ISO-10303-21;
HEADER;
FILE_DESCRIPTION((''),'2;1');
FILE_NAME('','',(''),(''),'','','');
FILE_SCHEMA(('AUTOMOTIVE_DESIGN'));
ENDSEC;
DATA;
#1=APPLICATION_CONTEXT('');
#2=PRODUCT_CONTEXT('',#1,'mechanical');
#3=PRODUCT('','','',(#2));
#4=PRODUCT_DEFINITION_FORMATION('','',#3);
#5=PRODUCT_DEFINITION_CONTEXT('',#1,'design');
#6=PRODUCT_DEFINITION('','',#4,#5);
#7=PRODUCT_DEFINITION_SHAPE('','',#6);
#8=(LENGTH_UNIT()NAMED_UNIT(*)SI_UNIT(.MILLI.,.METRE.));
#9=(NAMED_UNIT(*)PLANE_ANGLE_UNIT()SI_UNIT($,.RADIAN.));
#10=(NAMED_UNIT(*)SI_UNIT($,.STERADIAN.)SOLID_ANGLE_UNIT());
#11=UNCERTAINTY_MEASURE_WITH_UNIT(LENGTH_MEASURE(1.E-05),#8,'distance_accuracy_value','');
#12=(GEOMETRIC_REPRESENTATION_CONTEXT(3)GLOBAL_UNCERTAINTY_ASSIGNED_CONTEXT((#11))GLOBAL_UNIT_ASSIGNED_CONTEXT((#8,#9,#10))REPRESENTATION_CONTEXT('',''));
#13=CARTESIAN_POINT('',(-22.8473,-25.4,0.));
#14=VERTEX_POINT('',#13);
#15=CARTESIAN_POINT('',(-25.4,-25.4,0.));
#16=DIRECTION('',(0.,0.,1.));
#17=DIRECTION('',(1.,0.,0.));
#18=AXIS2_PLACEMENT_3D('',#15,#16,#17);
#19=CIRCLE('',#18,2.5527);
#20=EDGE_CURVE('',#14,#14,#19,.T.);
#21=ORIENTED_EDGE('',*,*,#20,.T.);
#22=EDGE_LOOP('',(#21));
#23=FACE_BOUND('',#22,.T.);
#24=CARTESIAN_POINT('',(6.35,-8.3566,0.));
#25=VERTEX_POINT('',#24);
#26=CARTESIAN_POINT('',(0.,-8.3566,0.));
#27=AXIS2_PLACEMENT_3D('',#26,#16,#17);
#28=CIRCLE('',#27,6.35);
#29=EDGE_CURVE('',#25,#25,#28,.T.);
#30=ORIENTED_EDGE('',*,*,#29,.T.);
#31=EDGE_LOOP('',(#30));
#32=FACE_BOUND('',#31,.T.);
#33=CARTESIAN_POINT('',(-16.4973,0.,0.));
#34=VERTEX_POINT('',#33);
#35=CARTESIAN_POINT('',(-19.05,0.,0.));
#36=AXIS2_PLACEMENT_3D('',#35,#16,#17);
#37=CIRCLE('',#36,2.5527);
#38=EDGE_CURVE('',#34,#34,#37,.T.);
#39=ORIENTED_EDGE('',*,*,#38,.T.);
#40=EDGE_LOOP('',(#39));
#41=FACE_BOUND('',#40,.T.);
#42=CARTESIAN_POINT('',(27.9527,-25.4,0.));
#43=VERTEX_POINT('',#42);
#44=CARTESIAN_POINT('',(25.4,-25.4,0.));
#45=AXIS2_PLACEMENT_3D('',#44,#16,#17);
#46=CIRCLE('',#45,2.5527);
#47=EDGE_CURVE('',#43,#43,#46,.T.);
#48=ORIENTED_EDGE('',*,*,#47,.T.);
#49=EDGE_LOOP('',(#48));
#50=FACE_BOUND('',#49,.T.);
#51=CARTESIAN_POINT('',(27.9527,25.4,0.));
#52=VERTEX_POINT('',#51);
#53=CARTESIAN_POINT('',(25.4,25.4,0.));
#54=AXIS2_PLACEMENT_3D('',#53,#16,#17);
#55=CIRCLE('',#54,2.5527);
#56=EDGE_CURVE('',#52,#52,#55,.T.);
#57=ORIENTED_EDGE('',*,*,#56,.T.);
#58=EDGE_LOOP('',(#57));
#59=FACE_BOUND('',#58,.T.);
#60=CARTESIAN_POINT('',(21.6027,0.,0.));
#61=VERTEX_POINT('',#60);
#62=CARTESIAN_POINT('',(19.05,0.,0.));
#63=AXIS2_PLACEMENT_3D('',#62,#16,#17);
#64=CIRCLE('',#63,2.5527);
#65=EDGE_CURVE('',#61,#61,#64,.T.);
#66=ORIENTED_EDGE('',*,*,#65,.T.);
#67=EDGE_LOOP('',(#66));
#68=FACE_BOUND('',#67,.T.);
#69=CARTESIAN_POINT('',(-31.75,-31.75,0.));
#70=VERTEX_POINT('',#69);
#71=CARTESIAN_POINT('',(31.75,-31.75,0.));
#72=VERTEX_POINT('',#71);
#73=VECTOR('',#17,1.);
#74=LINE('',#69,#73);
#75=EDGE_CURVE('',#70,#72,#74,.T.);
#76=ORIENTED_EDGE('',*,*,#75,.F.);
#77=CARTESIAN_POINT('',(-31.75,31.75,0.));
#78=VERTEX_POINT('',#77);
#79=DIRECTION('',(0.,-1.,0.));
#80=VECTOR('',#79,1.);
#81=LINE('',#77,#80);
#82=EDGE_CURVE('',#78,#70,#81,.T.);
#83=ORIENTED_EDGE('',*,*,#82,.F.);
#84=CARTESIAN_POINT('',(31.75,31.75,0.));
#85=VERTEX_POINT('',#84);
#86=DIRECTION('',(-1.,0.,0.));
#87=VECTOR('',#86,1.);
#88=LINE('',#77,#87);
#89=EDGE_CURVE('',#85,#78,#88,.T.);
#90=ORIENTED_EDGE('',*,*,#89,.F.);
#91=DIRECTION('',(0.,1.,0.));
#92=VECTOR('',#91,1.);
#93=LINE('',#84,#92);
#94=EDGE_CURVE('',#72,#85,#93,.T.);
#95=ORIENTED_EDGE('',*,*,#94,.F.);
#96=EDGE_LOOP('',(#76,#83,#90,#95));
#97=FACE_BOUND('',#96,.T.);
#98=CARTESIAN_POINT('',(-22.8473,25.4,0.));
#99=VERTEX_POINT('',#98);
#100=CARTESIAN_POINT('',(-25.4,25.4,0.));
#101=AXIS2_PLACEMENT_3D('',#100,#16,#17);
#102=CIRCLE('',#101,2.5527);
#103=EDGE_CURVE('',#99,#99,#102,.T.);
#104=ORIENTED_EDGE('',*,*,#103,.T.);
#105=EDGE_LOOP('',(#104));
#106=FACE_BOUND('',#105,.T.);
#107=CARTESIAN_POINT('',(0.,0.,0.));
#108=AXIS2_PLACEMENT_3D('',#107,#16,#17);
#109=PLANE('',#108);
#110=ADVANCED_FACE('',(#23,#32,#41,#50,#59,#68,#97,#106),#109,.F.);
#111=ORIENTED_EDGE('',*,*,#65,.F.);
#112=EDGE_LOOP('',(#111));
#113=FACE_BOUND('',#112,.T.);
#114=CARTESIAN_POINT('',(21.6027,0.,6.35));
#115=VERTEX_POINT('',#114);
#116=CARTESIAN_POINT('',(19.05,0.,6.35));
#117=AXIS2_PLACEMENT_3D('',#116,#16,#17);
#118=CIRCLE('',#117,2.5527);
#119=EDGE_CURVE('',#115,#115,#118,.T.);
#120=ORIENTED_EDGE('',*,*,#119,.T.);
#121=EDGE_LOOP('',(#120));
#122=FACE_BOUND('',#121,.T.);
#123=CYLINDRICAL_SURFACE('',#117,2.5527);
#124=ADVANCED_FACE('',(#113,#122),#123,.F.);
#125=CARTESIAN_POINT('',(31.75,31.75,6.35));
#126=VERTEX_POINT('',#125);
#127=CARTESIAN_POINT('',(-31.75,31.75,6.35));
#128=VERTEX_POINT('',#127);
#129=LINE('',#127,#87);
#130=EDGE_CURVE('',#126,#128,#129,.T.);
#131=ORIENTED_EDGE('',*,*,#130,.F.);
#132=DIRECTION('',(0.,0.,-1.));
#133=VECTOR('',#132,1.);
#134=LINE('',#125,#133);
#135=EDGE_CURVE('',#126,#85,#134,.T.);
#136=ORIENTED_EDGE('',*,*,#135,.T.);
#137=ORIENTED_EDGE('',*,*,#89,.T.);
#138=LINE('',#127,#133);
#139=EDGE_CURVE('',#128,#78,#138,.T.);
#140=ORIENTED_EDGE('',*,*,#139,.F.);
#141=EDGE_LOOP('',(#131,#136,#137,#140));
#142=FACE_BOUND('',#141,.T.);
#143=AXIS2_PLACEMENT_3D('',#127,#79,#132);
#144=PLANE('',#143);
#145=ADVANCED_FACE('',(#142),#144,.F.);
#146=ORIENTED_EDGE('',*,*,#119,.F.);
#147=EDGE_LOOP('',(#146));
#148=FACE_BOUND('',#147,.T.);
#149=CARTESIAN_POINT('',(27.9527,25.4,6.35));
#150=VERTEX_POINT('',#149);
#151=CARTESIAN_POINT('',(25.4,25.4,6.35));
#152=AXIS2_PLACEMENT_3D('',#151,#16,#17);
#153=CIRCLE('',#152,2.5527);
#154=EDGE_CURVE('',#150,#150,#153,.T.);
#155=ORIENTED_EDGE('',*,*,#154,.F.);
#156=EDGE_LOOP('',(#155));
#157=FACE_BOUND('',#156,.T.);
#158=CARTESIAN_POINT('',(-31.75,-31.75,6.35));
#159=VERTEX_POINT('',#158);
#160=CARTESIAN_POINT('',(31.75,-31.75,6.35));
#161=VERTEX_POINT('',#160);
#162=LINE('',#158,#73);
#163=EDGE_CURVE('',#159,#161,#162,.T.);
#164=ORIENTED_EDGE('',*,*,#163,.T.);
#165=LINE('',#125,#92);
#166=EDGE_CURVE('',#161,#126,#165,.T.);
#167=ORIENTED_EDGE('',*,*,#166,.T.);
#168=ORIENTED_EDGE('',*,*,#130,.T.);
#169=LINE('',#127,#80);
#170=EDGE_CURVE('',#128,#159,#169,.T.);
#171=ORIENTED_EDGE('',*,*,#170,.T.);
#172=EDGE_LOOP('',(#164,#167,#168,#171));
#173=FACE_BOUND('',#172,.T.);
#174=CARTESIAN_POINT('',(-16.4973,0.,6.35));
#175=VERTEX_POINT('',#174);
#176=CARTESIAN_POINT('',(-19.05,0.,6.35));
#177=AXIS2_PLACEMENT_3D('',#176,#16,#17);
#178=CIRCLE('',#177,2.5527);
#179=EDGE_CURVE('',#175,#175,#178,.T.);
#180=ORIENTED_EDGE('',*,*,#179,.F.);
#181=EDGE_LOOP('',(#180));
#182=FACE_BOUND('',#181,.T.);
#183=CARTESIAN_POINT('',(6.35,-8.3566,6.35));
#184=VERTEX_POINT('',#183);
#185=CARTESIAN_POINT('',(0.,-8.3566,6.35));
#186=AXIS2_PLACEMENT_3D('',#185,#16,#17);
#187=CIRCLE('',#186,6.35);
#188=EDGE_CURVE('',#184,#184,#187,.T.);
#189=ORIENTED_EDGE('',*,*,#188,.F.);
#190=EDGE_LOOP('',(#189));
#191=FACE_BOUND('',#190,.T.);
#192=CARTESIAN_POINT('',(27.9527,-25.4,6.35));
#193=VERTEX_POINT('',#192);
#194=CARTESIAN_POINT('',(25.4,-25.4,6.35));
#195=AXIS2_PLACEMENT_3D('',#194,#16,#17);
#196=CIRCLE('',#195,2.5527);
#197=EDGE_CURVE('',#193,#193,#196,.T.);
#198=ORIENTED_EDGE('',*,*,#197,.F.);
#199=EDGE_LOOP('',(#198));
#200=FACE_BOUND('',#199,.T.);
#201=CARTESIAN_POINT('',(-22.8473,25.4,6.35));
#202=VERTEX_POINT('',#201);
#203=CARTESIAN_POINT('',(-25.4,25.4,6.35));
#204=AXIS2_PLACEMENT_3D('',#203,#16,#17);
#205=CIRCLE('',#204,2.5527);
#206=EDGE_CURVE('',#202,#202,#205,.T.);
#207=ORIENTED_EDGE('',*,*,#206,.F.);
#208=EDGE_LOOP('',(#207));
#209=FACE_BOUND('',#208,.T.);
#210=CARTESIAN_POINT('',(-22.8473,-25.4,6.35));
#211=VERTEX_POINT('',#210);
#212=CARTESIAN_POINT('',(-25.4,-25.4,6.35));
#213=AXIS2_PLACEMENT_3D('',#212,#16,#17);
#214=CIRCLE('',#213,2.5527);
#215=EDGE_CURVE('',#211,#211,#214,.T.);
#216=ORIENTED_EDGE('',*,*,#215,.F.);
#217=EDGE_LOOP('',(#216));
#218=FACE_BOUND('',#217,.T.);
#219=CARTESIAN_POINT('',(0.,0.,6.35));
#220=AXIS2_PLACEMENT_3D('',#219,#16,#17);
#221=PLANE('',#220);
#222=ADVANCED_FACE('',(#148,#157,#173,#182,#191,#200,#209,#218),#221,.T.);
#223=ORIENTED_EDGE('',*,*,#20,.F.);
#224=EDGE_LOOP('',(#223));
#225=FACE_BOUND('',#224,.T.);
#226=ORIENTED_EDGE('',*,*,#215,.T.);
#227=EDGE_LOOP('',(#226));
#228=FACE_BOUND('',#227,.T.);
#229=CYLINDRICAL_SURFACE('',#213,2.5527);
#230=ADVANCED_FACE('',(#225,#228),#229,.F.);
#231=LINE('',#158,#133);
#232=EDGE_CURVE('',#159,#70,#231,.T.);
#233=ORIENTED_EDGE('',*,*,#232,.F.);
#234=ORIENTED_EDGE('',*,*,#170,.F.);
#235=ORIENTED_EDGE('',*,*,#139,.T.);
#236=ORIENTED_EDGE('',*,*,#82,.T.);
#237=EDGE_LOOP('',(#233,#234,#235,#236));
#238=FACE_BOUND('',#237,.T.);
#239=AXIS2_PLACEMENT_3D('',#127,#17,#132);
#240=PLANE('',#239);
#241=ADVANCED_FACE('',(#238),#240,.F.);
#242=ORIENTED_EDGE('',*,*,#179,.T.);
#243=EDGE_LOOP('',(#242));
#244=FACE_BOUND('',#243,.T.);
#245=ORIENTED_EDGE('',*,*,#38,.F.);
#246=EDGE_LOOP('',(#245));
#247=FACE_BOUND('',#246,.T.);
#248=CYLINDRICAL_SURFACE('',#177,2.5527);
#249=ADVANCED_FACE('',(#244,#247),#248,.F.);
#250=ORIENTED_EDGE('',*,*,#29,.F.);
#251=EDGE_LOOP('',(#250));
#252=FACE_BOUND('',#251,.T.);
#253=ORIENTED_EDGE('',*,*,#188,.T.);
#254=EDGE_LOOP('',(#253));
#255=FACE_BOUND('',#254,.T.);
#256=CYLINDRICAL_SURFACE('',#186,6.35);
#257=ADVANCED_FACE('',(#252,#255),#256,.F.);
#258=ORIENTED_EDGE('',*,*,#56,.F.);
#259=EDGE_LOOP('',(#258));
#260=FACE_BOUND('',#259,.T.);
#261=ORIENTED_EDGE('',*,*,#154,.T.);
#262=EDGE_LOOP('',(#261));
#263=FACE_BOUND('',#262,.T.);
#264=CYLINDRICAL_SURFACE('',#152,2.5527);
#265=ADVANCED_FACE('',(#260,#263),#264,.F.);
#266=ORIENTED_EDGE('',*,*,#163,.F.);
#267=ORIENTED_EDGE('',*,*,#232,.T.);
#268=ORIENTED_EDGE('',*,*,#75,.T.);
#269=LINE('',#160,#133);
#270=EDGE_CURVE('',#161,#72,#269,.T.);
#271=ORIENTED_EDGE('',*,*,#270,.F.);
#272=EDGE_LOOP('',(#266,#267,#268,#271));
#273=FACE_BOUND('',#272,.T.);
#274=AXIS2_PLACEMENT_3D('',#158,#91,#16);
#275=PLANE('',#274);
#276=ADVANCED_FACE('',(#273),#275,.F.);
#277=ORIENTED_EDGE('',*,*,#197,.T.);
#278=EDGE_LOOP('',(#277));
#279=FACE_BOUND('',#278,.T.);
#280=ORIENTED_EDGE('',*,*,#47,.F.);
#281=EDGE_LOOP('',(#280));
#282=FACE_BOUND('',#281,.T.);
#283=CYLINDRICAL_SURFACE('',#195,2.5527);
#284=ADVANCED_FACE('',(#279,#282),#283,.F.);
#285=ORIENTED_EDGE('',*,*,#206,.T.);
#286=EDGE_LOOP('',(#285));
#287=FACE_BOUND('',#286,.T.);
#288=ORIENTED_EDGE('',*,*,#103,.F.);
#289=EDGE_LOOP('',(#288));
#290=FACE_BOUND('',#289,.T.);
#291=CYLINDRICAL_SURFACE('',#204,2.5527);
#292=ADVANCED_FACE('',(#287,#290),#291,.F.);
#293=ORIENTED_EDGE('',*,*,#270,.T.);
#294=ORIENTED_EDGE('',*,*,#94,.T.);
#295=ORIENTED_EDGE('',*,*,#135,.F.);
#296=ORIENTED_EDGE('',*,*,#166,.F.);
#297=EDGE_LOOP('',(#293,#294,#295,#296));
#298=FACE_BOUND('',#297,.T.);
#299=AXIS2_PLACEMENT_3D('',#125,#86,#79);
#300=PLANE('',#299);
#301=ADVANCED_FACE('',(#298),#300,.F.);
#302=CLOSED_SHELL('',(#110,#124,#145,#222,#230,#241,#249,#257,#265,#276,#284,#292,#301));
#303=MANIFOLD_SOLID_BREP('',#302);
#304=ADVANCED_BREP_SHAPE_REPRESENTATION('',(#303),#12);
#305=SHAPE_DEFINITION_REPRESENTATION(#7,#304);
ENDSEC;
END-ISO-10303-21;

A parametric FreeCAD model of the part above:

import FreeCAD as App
import Part
import Sketcher

V = App.Vector
Q = App.Units.Quantity


def add_polygon(sketch, points):
    """Adds a closed chain of lines whose ends are joined by coincident constraints."""
    first, n = sketch.GeometryCount, len(points)
    for a, b in zip(points, points[1:] + points[:1]):
        sketch.addGeometry(Part.LineSegment(App.Vector(*a, 0), App.Vector(*b, 0)), False)
    for i in range(n):
        sketch.addConstraint(Sketcher.Constraint("Coincident", first + i, 2, first + (i + 1) % n, 1))

doc = App.newDocument("Part")
body = doc.addObject("PartDesign::Body", "Body")

sketch1 = body.newObject("Sketcher::SketchObject", "Sketch")
sketch1.AttachmentSupport = (doc.getObject("XY_Plane"), [""])
sketch1.MapMode = "FlatFace"
add_polygon(sketch1, [(-32, 32), (-32, -32), (32, -32), (32, 32)])
sketch1.addConstraint(Sketcher.Constraint("Vertical", 0))
sketch1.addConstraint(Sketcher.Constraint("Horizontal", 1))
sketch1.addConstraint(Sketcher.Constraint("Vertical", 2))
sketch1.addConstraint(Sketcher.Constraint("Horizontal", 3))
sketch1.addConstraint(Sketcher.Constraint("Symmetric", 0, 2, 2, 2, -1, 1))
sketch1.addConstraint(Sketcher.Constraint("Equal", 3, 0))
sketch1.addConstraint(Sketcher.Constraint("DistanceX", 1, 1, 1, 2, Q("2.5 in")))
pad1 = body.newObject("PartDesign::Pad", "Pad")
pad1.Profile = sketch1
pad1.Length = Q("0.25 in")

sketch2 = body.newObject("Sketcher::SketchObject", "Sketch001")
sketch2.AttachmentSupport = (doc.getObject("XY_Plane"), [""])
sketch2.MapMode = "FlatFace"
sketch2.AttachmentOffset = App.Placement(V(0, 0, 0.25 * 25.4), App.Rotation())
sketch2.addGeometry(Part.Circle(V(-25.4, 25.4, 0), V(0, 0, 1), 2.6), False)
sketch2.addGeometry(Part.Circle(V(25.4, -25.4, 0), V(0, 0, 1), 2.6), False)
sketch2.addGeometry(Part.Circle(V(-25.4, -25.4, 0), V(0, 0, 1), 2.6), False)
sketch2.addGeometry(Part.Circle(V(25.4, 25.4, 0), V(0, 0, 1), 2.6), False)
sketch2.addConstraint(Sketcher.Constraint("Equal", 0, 1))
sketch2.addConstraint(Sketcher.Constraint("Equal", 1, 2))
sketch2.addConstraint(Sketcher.Constraint("Equal", 2, 3))
sketch2.addConstraint(Sketcher.Constraint("Symmetric", 0, 3, 1, 3, -1, 1))
sketch2.addConstraint(Sketcher.Constraint("Symmetric", 2, 3, 3, 3, -1, 1))
sketch2.addConstraint(Sketcher.Constraint("Symmetric", 1, 3, 2, 3, -2))
sketch2.addConstraint(Sketcher.Constraint("Diameter", 0, Q("0.201 in")))
sketch2.addConstraint(Sketcher.Constraint("DistanceX", 0, 3, -1, 1, Q("1 in")))
sketch2.addConstraint(Sketcher.Constraint("DistanceY", -1, 1, 0, 3, Q("1 in")))
doc.recompute()
hole = body.newObject("PartDesign::Hole", "Hole")
hole.Profile = sketch2
hole.ThreadType = "None"
hole.Diameter = Q("0.201 in")
hole.DepthType = "ThroughAll"

sketch3 = body.newObject("Sketcher::SketchObject", "Sketch002")
sketch3.AttachmentSupport = (doc.getObject("XY_Plane"), [""])
sketch3.MapMode = "FlatFace"
sketch3.AttachmentOffset = App.Placement(V(0, 0, 0.25 * 25.4), App.Rotation())
sketch3.addGeometry(Part.Circle(V(-19.1, 0, 0), V(0, 0, 1), 2.6), False)
sketch3.addGeometry(Part.Circle(V(19.1, 0, 0), V(0, 0, 1), 2.6), False)
sketch3.addConstraint(Sketcher.Constraint("Equal", 0, 1))
sketch3.addConstraint(Sketcher.Constraint("Symmetric", 0, 3, 1, 3, -1, 1))
sketch3.addConstraint(Sketcher.Constraint("PointOnObject", 0, 3, -1))
sketch3.addConstraint(Sketcher.Constraint("Diameter", 0, Q("0.201 in")))
sketch3.addConstraint(Sketcher.Constraint("DistanceX", 0, 3, 1, 3, Q("1.5 in")))
doc.recompute()
hole2 = body.newObject("PartDesign::Hole", "Hole001")
hole2.Profile = sketch3
hole2.ThreadType = "None"
hole2.Diameter = Q("0.201 in")
hole2.DepthType = "ThroughAll"

sketch4 = body.newObject("Sketcher::SketchObject", "Sketch003")
sketch4.AttachmentSupport = (doc.getObject("XY_Plane"), [""])
sketch4.MapMode = "FlatFace"
sketch4.AttachmentOffset = App.Placement(V(0, 0, 0.25 * 25.4), App.Rotation())
sketch4.addGeometry(Part.Circle(V(0, -8, 0), V(0, 0, 1), 6), False)
sketch4.addConstraint(Sketcher.Constraint("PointOnObject", 0, 3, -2))
sketch4.addConstraint(Sketcher.Constraint("Diameter", 0, Q("0.5 in")))
sketch4.addConstraint(Sketcher.Constraint("DistanceY", 0, 3, -1, 1, Q("0.329 in")))
doc.recompute()
hole3 = body.newObject("PartDesign::Hole", "Hole002")
hole3.Profile = sketch4
hole3.ThreadType = "None"
hole3.Diameter = Q("0.5 in")
hole3.DepthType = "ThroughAll"

doc.recompute()
